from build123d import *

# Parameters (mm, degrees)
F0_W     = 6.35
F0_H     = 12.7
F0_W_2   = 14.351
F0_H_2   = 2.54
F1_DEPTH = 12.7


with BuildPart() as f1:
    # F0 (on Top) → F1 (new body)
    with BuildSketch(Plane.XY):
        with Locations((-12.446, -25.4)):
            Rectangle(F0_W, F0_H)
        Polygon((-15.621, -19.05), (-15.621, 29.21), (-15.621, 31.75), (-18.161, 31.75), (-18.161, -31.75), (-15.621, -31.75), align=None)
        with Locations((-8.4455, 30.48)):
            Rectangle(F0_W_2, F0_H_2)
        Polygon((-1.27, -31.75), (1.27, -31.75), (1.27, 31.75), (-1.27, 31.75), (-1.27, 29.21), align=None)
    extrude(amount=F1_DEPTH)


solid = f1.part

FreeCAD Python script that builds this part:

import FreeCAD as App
import Part
import Sketcher
from FreeCAD import Vector
Q = App.Units.Quantity


def add_polygon(sketch, points):
    """Adds a closed chain of lines whose ends are joined by coincident constraints."""
    first, n = sketch.GeometryCount, len(points)
    for a, b in zip(points, points[1:] + points[:1]):
        sketch.addGeometry(Part.LineSegment(App.Vector(*a, 0), App.Vector(*b, 0)), False)
    for i in range(n):
        sketch.addConstraint(Sketcher.Constraint("Coincident", first + i, 2, first + (i + 1) % n, 1))

doc = App.newDocument("Part")
params = doc.addObject("Spreadsheet::Sheet", "Params")
for row, (alias, value) in enumerate([
    ("sketch1_width", "0.1 in"),
    ("sketch1_height", "0.5 in"),
    ("sketch1_height2", "1.9 in"),
    ("sketch1_height3", "2.5 in"),
    ("sketch1_width2", "0.25 in"),
    ("pad1_length", "0.5 in"),
], start=1):
    params.set(f"A{row}", alias)
    params.set(f"B{row}", "=" + value)
    params.setAlias(f"B{row}", alias)

body = doc.addObject("PartDesign::Body", "Body")

sketch1 = body.newObject("Sketcher::SketchObject", "Sketch")
sketch1.AttachmentSupport = (doc.getObject("XY_Plane"), [""])
sketch1.MapMode = "FlatFace"
add_polygon(sketch1, [(-9.3, -31.8), (-9.3, -19.1), (-15.6, -19.1), (-15.6, 29.2), (-1.3, 29.2), (-1.3, -31.8), (1.3, -31.8), (1.3, 31.8), (-18.2, 31.8), (-18.2, -31.8)])
sketch1.addConstraint(Sketcher.Constraint("Vertical", 0))
sketch1.addConstraint(Sketcher.Constraint("Horizontal", 1))
sketch1.addConstraint(Sketcher.Constraint("Vertical", 2))
sketch1.addConstraint(Sketcher.Constraint("Horizontal", 3))
sketch1.addConstraint(Sketcher.Constraint("Vertical", 4))
sketch1.addConstraint(Sketcher.Constraint("Horizontal", 5))
sketch1.addConstraint(Sketcher.Constraint("Vertical", 6))
sketch1.addConstraint(Sketcher.Constraint("Horizontal", 7))
sketch1.addConstraint(Sketcher.Constraint("Vertical", 8))
sketch1.addConstraint(Sketcher.Constraint("Horizontal", 9))
sketch1.addConstraint(Sketcher.Constraint("Symmetric", 4, 2, 6, 2, -1, 1))
sketch1.addConstraint(Sketcher.Constraint("Horizontal", 5, 2, 8, 2))
sketch1.addConstraint(Sketcher.Constraint("DistanceX", 5, 1, 5, 2, Q("0.1 in")))
sketch1.addConstraint(Sketcher.Constraint("DistanceY", 0, 1, 0, 2, Q("0.5 in")))
sketch1.addConstraint(Sketcher.Constraint("DistanceY", 2, 1, 2, 2, Q("1.9 in")))
sketch1.addConstraint(Sketcher.Constraint("DistanceY", 6, 1, 6, 2, Q("2.5 in")))
sketch1.addConstraint(Sketcher.Constraint("DistanceX", 1, 2, 1, 1, Q("0.25 in")))
sketch1.addConstraint(Sketcher.Constraint("DistanceX", 9, 1, 9, 2, Q("0.35 in")))
sketch1.addConstraint(Sketcher.Constraint("DistanceX", 3, 1, 3, 2, Q("0.565 in")))
sketch1.setExpression("Constraints[22]", "Params.sketch1_width")
sketch1.setExpression("Constraints[23]", "Params.sketch1_height")
sketch1.setExpression("Constraints[24]", "Params.sketch1_height2")
sketch1.setExpression("Constraints[25]", "Params.sketch1_height3")
sketch1.setExpression("Constraints[26]", "Params.sketch1_width2")
pad1 = body.newObject("PartDesign::Pad", "Pad")
pad1.Profile = sketch1
pad1.setExpression("Length", "Params.pad1_length")

doc.recompute()
